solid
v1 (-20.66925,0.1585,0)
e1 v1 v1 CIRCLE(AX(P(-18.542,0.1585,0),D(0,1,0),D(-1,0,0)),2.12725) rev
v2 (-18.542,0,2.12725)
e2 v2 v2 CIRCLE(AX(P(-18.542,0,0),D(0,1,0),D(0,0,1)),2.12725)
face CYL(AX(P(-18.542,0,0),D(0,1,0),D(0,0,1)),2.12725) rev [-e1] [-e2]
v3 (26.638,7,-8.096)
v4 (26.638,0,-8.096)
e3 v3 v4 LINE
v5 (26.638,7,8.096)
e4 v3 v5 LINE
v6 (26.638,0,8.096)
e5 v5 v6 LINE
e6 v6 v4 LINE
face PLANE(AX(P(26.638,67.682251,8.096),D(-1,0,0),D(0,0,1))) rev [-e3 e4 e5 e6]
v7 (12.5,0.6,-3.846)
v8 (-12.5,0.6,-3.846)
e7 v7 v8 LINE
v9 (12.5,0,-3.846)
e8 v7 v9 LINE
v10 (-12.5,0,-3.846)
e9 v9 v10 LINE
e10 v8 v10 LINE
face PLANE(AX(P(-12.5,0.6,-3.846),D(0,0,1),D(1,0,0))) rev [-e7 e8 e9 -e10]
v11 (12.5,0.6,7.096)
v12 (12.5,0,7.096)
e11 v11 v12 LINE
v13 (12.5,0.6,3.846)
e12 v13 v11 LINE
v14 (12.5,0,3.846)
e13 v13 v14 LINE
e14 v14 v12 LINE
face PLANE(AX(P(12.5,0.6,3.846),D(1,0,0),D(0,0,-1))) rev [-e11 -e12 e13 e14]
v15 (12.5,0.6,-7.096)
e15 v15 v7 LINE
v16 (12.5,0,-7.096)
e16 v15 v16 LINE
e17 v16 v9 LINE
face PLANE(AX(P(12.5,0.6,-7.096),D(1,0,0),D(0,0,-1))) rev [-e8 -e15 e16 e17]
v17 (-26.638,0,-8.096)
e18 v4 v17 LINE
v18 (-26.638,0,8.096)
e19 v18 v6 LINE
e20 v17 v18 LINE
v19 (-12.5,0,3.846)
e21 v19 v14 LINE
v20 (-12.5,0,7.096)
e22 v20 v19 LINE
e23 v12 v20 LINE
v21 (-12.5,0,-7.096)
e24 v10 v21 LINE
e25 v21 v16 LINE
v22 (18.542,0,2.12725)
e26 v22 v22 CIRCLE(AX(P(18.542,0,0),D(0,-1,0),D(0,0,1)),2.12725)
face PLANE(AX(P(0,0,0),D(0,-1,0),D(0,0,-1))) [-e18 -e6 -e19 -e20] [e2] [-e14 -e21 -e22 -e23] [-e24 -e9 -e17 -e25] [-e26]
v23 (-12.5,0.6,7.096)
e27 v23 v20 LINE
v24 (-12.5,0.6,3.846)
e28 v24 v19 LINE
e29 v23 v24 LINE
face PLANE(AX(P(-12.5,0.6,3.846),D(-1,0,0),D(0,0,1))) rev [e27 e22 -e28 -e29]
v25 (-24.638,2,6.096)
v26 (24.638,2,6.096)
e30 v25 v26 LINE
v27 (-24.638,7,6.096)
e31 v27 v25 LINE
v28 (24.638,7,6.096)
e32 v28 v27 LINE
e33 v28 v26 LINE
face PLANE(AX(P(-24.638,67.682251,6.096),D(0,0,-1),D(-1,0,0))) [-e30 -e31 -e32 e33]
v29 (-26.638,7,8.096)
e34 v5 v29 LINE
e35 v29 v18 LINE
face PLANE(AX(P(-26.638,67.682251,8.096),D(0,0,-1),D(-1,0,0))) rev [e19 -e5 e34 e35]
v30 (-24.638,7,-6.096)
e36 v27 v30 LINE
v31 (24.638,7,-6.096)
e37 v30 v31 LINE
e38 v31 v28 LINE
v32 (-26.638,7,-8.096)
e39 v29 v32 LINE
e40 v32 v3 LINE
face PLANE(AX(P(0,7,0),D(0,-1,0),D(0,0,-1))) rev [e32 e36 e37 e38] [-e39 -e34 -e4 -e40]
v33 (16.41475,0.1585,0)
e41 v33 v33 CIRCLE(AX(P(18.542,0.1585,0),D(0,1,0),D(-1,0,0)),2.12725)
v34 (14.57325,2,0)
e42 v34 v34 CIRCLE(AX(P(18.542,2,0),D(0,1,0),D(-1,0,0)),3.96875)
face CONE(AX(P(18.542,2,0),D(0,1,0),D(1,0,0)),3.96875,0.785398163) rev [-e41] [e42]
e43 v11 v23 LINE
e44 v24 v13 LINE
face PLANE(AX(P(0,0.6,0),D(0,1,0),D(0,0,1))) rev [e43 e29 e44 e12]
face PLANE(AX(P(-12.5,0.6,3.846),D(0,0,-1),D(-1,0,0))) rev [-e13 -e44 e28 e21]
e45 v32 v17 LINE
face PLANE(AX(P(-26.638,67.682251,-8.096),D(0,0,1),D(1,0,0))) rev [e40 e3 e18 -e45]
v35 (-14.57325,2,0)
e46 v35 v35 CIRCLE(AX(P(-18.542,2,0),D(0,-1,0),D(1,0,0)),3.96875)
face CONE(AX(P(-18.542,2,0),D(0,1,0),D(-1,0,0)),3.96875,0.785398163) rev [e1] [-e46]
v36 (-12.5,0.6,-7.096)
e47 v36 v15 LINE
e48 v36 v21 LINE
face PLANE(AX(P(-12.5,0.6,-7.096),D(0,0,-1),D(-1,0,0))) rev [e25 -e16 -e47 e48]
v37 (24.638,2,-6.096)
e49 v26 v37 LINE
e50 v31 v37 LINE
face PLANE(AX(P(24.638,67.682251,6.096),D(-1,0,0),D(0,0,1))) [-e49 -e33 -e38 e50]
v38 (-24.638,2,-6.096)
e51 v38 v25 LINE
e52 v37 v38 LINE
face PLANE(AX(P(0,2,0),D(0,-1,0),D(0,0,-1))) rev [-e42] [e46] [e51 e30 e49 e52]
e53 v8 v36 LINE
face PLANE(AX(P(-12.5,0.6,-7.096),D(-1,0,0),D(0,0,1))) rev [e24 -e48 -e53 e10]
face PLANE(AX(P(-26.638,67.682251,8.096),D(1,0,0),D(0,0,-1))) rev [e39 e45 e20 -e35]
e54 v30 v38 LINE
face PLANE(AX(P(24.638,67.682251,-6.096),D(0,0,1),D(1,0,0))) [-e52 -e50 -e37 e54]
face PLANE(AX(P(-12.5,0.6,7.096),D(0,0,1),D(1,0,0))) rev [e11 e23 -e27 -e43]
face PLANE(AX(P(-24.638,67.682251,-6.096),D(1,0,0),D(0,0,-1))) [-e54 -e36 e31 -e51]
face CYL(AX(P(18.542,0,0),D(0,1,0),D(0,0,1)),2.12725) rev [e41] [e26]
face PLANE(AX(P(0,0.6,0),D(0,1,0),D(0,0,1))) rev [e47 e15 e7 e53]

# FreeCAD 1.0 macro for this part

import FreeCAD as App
import Part
import Sketcher


def add_polygon(sketch, points):
    """Adds a closed chain of lines whose ends are joined by coincident constraints."""
    first, n = sketch.GeometryCount, len(points)
    for a, b in zip(points, points[1:] + points[:1]):
        sketch.addGeometry(Part.LineSegment(App.Vector(*a, 0), App.Vector(*b, 0)), False)
    for i in range(n):
        sketch.addConstraint(Sketcher.Constraint("Coincident", first + i, 2, first + (i + 1) % n, 1))

doc = App.newDocument("Part")
params = doc.addObject("Spreadsheet::Sheet", "Params")
for row, (alias, value) in enumerate([
    ("pad1_length", "2 mm"),
    ("pad2_length", "7 mm"),
    ("groove_angle", "360 deg"),
    ("sketch5_width", "25 mm"),
    ("sketch5_height", "3.25 mm"),
    ("pocket2_length", "0.6 mm"),
], start=1):
    params.set(f"A{row}", alias)
    params.set(f"B{row}", "=" + value)
    params.setAlias(f"B{row}", alias)

body = doc.addObject("PartDesign::Body", "Body")

# Sketch on XZ plane
sketch1 = doc.addObject("Sketcher::SketchObject", "Sketch")
body.addObject(sketch1)
sketch1.AttachmentSupport = (doc.XZ_Plane, [""])
sketch1.MapMode = "FlatFace"
add_polygon(sketch1, [(-24.638, -6.096), (-24.638, 6.096), (24.638, 6.096), (24.638, -6.096)])  # lines 0-3
sketch1.addConstraint([
    Sketcher.Constraint("Vertical", 0),
    Sketcher.Constraint("Horizontal", 1),
    Sketcher.Constraint("Vertical", 2),
    Sketcher.Constraint("Horizontal", 3),
    Sketcher.Constraint("Symmetric", 0, 2, 2, 2, -1, 1),
    Sketcher.Constraint("DistanceX", 1, 1, 1, 2, 49.276),
    Sketcher.Constraint("DistanceY", 0, 1, 0, 2, 12.192),
])
pad1 = doc.addObject("PartDesign::Pad", "Pad")
body.addObject(pad1)
pad1.Profile = sketch1
pad1.setExpression("Length", "Params.pad1_length")
pad1.Reversed = True

# Sketch on XZ plane
sketch2 = doc.addObject("Sketcher::SketchObject", "Sketch001")
body.addObject(sketch2)
sketch2.AttachmentSupport = (doc.XZ_Plane, [""])
sketch2.MapMode = "FlatFace"
add_polygon(sketch2, [(-26.638, -8.096), (-26.638, 8.096), (26.638, 8.096), (26.638, -8.096)])  # lines 0-3
add_polygon(sketch2, [(24.638, 6.096), (-24.638, 6.096), (-24.638, -6.096), (24.638, -6.096)])  # lines 4-7
sketch2.addConstraint([
    Sketcher.Constraint("Vertical", 0),
    Sketcher.Constraint("Horizontal", 1),
    Sketcher.Constraint("Vertical", 2),
    Sketcher.Constraint("Horizontal", 3),
    Sketcher.Constraint("Horizontal", 4),
    Sketcher.Constraint("Vertical", 5),
    Sketcher.Constraint("Horizontal", 6),
    Sketcher.Constraint("Vertical", 7),
    Sketcher.Constraint("Symmetric", 0, 2, 2, 2, -1, 1),
    Sketcher.Constraint("Symmetric", 4, 2, 6, 2, -1, 1),
    Sketcher.Constraint("DistanceX", 0, 2, 4, 2, 2.0),
    Sketcher.Constraint("DistanceY", 4, 2, 0, 2, 2.0),
    Sketcher.Constraint("DistanceX", 1, 1, 1, 2, 53.276),
    Sketcher.Constraint("DistanceY", 0, 1, 0, 2, 16.192),
])
pad2 = doc.addObject("PartDesign::Pad", "Pad001")
body.addObject(pad2)
pad2.Profile = sketch2
pad2.setExpression("Length", "Params.pad2_length")
pad2.Reversed = True

# Sketch on XZ plane
sketch3 = doc.addObject("Sketcher::SketchObject", "Sketch002")
body.addObject(sketch3)
sketch3.AttachmentSupport = (doc.XZ_Plane, [""])
sketch3.MapMode = "FlatFace"
sketch3.AttachmentOffset = App.Placement(App.Vector(0, 0, -2), App.Rotation())
sketch3.addGeometry(Part.Circle(App.Vector(-18.542, 0, 0), App.Vector(0, 0, 1), 2.12725), False)
sketch3.addConstraint([
    Sketcher.Constraint("PointOnObject", 0, 3, -1),
    Sketcher.Constraint("Diameter", 0, 4.2545),
    Sketcher.Constraint("DistanceX", 0, 3, -1, 1, 18.542),
])
pocket1 = doc.addObject("PartDesign::Pocket", "Pocket")
body.addObject(pocket1)
pocket1.Profile = sketch3
pocket1.Type = "ThroughAll"
pocket1.Reversed = True

# Sketch on XY plane
sketch4 = doc.addObject("Sketcher::SketchObject", "Sketch003")
body.addObject(sketch4)
sketch4.AttachmentSupport = (doc.XY_Plane, [""])
sketch4.MapMode = "FlatFace"
add_polygon(sketch4, [(-18.542, 2), (-14.57325, 2), (-18.542, -1.96875)])  # lines 0-2
sketch4.addGeometry(Part.LineSegment(App.Vector(-18.542, -1.96875, 0), App.Vector(-18.542, 2, 0)), True)  # axis
sketch4.addConstraint([
    Sketcher.Constraint("Horizontal", 0),
    Sketcher.Constraint("Vertical", 2),
    Sketcher.Constraint("Vertical", 3),
    Sketcher.Constraint("Coincident", 3, 1, 1, 2),
    Sketcher.Constraint("Horizontal", 0, 2, 3, 2),
    Sketcher.Constraint("Equal", 0, 2),
    Sketcher.Constraint("DistanceY", -1, 1, 0, 2, 2.0),
    Sketcher.Constraint("DistanceX", 1, 2, -1, 1, 18.542),
    Sketcher.Constraint("DistanceX", 0, 1, 0, 2, 3.96875),
])
groove = doc.addObject("PartDesign::Groove", "Groove")
body.addObject(groove)
groove.Profile = sketch4
groove.ReferenceAxis = (sketch4, ["Axis0"])
groove.setExpression("Angle", "Params.groove_angle")
doc.recompute()

mirrored = doc.addObject("PartDesign::Mirrored", "Mirrored")
body.addObject(mirrored)
mirrored.Originals = [pocket1, groove]
mirrored.MirrorPlane = (doc.YZ_Plane, [""])
body.Tip = mirrored

# Sketch on XZ plane
sketch5 = doc.addObject("Sketcher::SketchObject", "Sketch004")
body.addObject(sketch5)
sketch5.AttachmentSupport = (doc.XZ_Plane, [""])
sketch5.MapMode = "FlatFace"
add_polygon(sketch5, [(12.5, 3.846), (12.5, 7.096), (-12.5, 7.096), (-12.5, 3.846)])  # lines 0-3
add_polygon(sketch5, [(12.5, -7.096), (12.5, -3.846), (-12.5, -3.846), (-12.5, -7.096)])  # lines 4-7
sketch5.addConstraint([
    Sketcher.Constraint("Vertical", 0),
    Sketcher.Constraint("Horizontal", 1),
    Sketcher.Constraint("Vertical", 2),
    Sketcher.Constraint("Horizontal", 3),
    Sketcher.Constraint("Vertical", 4),
    Sketcher.Constraint("Horizontal", 5),
    Sketcher.Constraint("Vertical", 6),
    Sketcher.Constraint("Horizontal", 7),
    Sketcher.Constraint("Symmetric", 2, 2, 4, 2, -1, 1),
    Sketcher.Constraint("Symmetric", 0, 2, 6, 2, -1, 1),
    Sketcher.Constraint("Vertical", 3, 2, 4, 2),
    Sketcher.Constraint("DistanceX", 1, 2, 1, 1, 25.0),
    Sketcher.Constraint("DistanceY", 0, 1, 0, 2, 3.25),
    Sketcher.Constraint("DistanceY", -1, 1, 0, 2, 7.096),
])
sketch5.setExpression("Constraints[19]", "Params.sketch5_width")
sketch5.setExpression("Constraints[20]", "Params.sketch5_height")
pocket2 = doc.addObject("PartDesign::Pocket", "Pocket001")
body.addObject(pocket2)
pocket2.Profile = sketch5
pocket2.setExpression("Length", "Params.pocket2_length")

doc.recompute()
